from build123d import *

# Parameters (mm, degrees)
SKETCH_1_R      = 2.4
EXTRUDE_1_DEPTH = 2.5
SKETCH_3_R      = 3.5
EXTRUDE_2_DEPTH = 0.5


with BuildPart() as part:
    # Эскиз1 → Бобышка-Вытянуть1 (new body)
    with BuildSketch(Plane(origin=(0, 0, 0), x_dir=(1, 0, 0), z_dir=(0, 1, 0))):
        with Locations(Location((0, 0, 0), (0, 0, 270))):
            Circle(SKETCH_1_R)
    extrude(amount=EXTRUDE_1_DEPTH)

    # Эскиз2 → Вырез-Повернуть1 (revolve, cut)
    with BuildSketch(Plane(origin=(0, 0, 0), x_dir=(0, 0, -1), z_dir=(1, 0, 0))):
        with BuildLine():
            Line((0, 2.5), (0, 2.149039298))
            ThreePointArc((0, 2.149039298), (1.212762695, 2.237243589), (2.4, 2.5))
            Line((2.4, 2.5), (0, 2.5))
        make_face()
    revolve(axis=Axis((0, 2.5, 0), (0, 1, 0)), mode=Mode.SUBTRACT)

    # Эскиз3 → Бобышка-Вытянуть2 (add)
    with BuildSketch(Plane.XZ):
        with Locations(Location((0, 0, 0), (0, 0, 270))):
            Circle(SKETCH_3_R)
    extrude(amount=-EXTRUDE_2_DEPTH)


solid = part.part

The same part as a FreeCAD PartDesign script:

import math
import FreeCAD as App
import Part
import Sketcher
from FreeCAD import Vector

doc = App.newDocument("Part")
body = doc.addObject("PartDesign::Body", "Body")

# Sketch on XZ plane
sketch1 = body.newObject("Sketcher::SketchObject", "Sketch")
sketch1.AttachmentSupport = (doc.getObject("XZ_Plane"), [""])
sketch1.MapMode = "FlatFace"
sketch1.addGeometry(Part.Circle(Vector(0, 0, 0), Vector(0, 0, 1), 2.4), False)
sketch1.addConstraint([
    Sketcher.Constraint("Coincident", 0, 3, -1, 1),
    Sketcher.Constraint("Diameter", 0, 4.8),
])
pad1 = body.newObject("PartDesign::Pad", "Pad")
pad1.Profile = sketch1
pad1.Length = 2.5
pad1.Reversed = True

# Sketch on YZ plane
sketch2 = body.newObject("Sketcher::SketchObject", "Sketch001")
sketch2.AttachmentSupport = (doc.getObject("YZ_Plane"), [""])
sketch2.MapMode = "FlatFace"
sketch2.addGeometry([
    Part.LineSegment(Vector(2.5, 0, 0), Vector(2.15, 0, 0)),
    Part.ArcOfCircle(Part.Circle(Vector(10.53, 0, 0), Vector(0, 0, 1), 8.38), math.radians(180), math.radians(196.64)),
    Part.LineSegment(Vector(2.5, -2.4, 0), Vector(2.5, 0, 0)),
], False)
sketch2.addConstraint([
    Sketcher.Constraint("Coincident", 0, 2, 1, 1),
    Sketcher.Constraint("Coincident", 1, 2, 2, 1),
    Sketcher.Constraint("Coincident", 2, 2, 0, 1),
    Sketcher.Constraint("Horizontal", 0),
    Sketcher.Constraint("Vertical", 2),
    Sketcher.Constraint("PointOnObject", 1, 3, -1),
    Sketcher.Constraint("PointOnObject", 0, 2, -1),
    Sketcher.Constraint("DistanceY", 2, 1, 2, 2, 2.4),
    Sketcher.Constraint("DistanceX", -1, 1, 1, 2, 2.5),
    Sketcher.Constraint("Radius", 1, 8.381527),
])
groove = body.newObject("PartDesign::Groove", "Groove")
groove.Profile = sketch2
groove.ReferenceAxis = (sketch2, ["H_Axis"])
groove.Angle = 360

# Sketch on XZ plane
sketch3 = body.newObject("Sketcher::SketchObject", "Sketch002")
sketch3.AttachmentSupport = (doc.getObject("XZ_Plane"), [""])
sketch3.MapMode = "FlatFace"
sketch3.addGeometry(Part.Circle(Vector(0, 0, 0), Vector(0, 0, 1), 3.5), False)
sketch3.addConstraint([
    Sketcher.Constraint("Coincident", 0, 3, -1, 1),
    Sketcher.Constraint("Diameter", 0, 7.0),
])
pad2 = body.newObject("PartDesign::Pad", "Pad001")
pad2.Profile = sketch3
pad2.Length = 0.5
pad2.Reversed = True

doc.recompute()
